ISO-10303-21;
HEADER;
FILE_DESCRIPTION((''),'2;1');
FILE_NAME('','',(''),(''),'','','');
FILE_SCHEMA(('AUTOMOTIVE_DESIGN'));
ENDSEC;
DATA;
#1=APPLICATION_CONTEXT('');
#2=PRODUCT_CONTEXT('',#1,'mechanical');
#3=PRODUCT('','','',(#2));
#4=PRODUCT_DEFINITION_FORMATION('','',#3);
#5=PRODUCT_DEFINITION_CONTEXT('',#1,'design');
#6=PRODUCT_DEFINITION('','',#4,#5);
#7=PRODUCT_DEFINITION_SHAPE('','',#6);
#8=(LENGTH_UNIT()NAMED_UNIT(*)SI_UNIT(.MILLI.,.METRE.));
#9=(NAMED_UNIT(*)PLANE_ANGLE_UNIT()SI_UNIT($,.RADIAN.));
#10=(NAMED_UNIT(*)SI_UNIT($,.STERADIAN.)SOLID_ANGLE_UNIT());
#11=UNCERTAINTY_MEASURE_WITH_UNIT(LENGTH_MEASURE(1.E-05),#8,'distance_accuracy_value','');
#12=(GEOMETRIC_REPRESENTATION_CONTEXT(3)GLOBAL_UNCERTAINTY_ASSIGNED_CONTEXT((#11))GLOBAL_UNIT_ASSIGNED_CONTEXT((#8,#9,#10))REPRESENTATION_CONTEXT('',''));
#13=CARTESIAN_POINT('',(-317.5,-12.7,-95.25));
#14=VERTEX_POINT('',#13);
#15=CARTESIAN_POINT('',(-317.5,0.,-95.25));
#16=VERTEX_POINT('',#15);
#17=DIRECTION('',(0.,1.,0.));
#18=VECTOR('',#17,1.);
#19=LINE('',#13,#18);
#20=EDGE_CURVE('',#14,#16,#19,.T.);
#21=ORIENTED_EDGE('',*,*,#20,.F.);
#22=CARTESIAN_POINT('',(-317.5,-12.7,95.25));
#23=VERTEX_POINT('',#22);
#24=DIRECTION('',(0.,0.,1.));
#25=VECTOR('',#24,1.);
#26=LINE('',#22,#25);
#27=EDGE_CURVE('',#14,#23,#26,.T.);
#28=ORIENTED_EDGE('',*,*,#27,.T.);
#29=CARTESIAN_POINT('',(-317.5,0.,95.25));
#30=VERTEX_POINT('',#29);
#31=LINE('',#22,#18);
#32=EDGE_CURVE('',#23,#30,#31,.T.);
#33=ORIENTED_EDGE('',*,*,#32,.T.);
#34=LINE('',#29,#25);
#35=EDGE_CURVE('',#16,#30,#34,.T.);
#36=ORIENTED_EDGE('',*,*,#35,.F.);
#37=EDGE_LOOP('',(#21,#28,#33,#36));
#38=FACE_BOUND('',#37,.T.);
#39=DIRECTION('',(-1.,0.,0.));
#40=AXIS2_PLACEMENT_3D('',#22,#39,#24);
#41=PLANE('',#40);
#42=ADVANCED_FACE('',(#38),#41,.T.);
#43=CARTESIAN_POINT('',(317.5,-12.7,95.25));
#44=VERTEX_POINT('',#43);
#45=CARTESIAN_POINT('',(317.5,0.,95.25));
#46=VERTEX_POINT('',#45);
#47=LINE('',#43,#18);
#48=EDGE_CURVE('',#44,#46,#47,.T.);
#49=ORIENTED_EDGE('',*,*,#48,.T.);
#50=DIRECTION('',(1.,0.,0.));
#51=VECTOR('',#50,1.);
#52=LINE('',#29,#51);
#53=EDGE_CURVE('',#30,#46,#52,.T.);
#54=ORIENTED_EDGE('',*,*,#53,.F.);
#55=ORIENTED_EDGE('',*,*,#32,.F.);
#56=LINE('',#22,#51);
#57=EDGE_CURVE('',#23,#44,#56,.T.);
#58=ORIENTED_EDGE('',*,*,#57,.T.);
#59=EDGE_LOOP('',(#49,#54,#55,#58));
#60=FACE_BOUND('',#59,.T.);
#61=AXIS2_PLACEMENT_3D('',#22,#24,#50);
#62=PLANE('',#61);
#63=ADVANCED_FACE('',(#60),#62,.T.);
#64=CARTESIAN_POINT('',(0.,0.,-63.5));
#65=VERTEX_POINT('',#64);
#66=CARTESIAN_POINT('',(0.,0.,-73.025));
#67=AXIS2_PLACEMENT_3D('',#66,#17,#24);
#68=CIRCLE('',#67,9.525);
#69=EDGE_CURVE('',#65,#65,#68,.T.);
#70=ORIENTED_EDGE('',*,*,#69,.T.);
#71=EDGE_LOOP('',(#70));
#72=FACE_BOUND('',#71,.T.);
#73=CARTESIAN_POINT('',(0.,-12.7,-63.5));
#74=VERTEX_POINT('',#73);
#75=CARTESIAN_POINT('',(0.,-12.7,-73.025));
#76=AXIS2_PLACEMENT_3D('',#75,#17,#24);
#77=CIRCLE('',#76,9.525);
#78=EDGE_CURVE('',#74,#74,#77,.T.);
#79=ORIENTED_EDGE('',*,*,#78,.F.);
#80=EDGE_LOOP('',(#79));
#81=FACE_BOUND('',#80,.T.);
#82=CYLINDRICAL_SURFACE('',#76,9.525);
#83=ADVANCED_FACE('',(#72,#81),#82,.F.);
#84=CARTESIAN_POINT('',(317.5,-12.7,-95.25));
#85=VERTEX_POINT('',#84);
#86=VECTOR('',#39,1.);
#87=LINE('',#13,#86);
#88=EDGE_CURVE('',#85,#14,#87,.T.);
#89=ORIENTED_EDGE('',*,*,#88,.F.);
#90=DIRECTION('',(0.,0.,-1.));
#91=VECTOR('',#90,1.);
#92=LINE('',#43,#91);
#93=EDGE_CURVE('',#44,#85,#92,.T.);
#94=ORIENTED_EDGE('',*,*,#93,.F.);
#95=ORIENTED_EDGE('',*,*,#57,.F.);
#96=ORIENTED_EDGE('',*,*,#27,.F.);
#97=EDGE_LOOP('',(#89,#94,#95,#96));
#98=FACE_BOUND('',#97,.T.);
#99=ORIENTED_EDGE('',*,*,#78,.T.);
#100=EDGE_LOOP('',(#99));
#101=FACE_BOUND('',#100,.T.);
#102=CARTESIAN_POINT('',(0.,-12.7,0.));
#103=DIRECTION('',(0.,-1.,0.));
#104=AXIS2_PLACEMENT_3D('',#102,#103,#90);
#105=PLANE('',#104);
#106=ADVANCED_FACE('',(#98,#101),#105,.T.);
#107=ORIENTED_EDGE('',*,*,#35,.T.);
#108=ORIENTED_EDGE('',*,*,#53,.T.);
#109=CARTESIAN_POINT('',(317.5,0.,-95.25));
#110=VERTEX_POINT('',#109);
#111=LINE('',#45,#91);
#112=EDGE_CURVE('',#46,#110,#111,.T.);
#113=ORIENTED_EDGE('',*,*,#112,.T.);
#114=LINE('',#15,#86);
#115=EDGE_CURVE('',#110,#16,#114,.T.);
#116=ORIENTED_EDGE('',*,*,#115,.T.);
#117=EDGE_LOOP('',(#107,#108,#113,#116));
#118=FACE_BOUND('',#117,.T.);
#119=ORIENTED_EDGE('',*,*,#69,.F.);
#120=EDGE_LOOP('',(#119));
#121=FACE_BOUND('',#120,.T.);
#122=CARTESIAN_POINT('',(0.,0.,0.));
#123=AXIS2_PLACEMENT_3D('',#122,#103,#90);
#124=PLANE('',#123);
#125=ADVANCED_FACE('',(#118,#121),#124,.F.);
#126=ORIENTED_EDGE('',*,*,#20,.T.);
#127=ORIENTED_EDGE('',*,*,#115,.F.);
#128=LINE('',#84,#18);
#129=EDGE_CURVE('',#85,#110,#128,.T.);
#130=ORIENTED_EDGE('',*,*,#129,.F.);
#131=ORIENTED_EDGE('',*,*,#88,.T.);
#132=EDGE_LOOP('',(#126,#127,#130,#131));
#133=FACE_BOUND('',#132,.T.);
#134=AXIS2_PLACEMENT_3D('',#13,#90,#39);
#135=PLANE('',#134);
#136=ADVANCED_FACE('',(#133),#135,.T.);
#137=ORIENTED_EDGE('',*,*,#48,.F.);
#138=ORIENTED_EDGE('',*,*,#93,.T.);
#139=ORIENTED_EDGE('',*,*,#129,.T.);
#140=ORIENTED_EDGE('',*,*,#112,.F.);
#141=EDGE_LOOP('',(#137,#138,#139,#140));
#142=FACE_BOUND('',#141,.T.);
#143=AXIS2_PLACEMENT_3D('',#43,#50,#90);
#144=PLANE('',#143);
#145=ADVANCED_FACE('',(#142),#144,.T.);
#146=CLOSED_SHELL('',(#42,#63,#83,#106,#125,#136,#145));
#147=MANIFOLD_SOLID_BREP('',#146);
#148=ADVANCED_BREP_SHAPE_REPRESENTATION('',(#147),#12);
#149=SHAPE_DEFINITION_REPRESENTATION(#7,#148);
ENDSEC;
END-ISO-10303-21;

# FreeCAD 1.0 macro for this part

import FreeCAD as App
import Part
import Sketcher
Q = App.Units.Quantity


def add_polygon(sketch, points):
    """Adds a closed chain of lines whose ends are joined by coincident constraints."""
    first, n = sketch.GeometryCount, len(points)
    for a, b in zip(points, points[1:] + points[:1]):
        sketch.addGeometry(Part.LineSegment(App.Vector(*a, 0), App.Vector(*b, 0)), False)
    for i in range(n):
        sketch.addConstraint(Sketcher.Constraint("Coincident", first + i, 2, first + (i + 1) % n, 1))

doc = App.newDocument("Part")
body = doc.addObject("PartDesign::Body", "Body")

# Sketch on XZ plane
sketch1 = body.newObject("Sketcher::SketchObject", "Sketch")
sketch1.AttachmentSupport = (doc.getObject("XZ_Plane"), [""])
sketch1.MapMode = "FlatFace"
add_polygon(sketch1, [(-317.5, -95.25), (-317.5, 95.25), (317.5, 95.25), (317.5, -95.25)])  # lines 0-3
sketch1.addConstraint([
    Sketcher.Constraint("Vertical", 0),
    Sketcher.Constraint("Horizontal", 1),
    Sketcher.Constraint("Vertical", 2),
    Sketcher.Constraint("Horizontal", 3),
    Sketcher.Constraint("Symmetric", 0, 2, 2, 2, -1, 1),
    Sketcher.Constraint("DistanceX", 1, 1, 1, 2, Q("25 in")),
    Sketcher.Constraint("DistanceY", 0, 1, 0, 2, Q("7.5 in")),
])
pad1 = body.newObject("PartDesign::Pad", "Pad")
pad1.Profile = sketch1
pad1.Length = Q("0.5 in")

# Sketch on XZ plane
sketch2 = body.newObject("Sketcher::SketchObject", "Sketch001")
sketch2.AttachmentSupport = (doc.getObject("XZ_Plane"), [""])
sketch2.MapMode = "FlatFace"
sketch2.addGeometry(Part.Circle(App.Vector(0, -73.025, 0), App.Vector(0, 0, 1), 9.525), False)
sketch2.addConstraint([
    Sketcher.Constraint("PointOnObject", 0, 3, -2),
    Sketcher.Constraint("Diameter", 0, Q("0.75 in")),
    Sketcher.Constraint("DistanceY", 0, 3, -1, 1, Q("2.875 in")),
])
pocket1 = body.newObject("PartDesign::Pocket", "Pocket")
pocket1.Profile = sketch2
pocket1.Type = "ThroughAll"
pocket1.Reversed = True

doc.recompute()
